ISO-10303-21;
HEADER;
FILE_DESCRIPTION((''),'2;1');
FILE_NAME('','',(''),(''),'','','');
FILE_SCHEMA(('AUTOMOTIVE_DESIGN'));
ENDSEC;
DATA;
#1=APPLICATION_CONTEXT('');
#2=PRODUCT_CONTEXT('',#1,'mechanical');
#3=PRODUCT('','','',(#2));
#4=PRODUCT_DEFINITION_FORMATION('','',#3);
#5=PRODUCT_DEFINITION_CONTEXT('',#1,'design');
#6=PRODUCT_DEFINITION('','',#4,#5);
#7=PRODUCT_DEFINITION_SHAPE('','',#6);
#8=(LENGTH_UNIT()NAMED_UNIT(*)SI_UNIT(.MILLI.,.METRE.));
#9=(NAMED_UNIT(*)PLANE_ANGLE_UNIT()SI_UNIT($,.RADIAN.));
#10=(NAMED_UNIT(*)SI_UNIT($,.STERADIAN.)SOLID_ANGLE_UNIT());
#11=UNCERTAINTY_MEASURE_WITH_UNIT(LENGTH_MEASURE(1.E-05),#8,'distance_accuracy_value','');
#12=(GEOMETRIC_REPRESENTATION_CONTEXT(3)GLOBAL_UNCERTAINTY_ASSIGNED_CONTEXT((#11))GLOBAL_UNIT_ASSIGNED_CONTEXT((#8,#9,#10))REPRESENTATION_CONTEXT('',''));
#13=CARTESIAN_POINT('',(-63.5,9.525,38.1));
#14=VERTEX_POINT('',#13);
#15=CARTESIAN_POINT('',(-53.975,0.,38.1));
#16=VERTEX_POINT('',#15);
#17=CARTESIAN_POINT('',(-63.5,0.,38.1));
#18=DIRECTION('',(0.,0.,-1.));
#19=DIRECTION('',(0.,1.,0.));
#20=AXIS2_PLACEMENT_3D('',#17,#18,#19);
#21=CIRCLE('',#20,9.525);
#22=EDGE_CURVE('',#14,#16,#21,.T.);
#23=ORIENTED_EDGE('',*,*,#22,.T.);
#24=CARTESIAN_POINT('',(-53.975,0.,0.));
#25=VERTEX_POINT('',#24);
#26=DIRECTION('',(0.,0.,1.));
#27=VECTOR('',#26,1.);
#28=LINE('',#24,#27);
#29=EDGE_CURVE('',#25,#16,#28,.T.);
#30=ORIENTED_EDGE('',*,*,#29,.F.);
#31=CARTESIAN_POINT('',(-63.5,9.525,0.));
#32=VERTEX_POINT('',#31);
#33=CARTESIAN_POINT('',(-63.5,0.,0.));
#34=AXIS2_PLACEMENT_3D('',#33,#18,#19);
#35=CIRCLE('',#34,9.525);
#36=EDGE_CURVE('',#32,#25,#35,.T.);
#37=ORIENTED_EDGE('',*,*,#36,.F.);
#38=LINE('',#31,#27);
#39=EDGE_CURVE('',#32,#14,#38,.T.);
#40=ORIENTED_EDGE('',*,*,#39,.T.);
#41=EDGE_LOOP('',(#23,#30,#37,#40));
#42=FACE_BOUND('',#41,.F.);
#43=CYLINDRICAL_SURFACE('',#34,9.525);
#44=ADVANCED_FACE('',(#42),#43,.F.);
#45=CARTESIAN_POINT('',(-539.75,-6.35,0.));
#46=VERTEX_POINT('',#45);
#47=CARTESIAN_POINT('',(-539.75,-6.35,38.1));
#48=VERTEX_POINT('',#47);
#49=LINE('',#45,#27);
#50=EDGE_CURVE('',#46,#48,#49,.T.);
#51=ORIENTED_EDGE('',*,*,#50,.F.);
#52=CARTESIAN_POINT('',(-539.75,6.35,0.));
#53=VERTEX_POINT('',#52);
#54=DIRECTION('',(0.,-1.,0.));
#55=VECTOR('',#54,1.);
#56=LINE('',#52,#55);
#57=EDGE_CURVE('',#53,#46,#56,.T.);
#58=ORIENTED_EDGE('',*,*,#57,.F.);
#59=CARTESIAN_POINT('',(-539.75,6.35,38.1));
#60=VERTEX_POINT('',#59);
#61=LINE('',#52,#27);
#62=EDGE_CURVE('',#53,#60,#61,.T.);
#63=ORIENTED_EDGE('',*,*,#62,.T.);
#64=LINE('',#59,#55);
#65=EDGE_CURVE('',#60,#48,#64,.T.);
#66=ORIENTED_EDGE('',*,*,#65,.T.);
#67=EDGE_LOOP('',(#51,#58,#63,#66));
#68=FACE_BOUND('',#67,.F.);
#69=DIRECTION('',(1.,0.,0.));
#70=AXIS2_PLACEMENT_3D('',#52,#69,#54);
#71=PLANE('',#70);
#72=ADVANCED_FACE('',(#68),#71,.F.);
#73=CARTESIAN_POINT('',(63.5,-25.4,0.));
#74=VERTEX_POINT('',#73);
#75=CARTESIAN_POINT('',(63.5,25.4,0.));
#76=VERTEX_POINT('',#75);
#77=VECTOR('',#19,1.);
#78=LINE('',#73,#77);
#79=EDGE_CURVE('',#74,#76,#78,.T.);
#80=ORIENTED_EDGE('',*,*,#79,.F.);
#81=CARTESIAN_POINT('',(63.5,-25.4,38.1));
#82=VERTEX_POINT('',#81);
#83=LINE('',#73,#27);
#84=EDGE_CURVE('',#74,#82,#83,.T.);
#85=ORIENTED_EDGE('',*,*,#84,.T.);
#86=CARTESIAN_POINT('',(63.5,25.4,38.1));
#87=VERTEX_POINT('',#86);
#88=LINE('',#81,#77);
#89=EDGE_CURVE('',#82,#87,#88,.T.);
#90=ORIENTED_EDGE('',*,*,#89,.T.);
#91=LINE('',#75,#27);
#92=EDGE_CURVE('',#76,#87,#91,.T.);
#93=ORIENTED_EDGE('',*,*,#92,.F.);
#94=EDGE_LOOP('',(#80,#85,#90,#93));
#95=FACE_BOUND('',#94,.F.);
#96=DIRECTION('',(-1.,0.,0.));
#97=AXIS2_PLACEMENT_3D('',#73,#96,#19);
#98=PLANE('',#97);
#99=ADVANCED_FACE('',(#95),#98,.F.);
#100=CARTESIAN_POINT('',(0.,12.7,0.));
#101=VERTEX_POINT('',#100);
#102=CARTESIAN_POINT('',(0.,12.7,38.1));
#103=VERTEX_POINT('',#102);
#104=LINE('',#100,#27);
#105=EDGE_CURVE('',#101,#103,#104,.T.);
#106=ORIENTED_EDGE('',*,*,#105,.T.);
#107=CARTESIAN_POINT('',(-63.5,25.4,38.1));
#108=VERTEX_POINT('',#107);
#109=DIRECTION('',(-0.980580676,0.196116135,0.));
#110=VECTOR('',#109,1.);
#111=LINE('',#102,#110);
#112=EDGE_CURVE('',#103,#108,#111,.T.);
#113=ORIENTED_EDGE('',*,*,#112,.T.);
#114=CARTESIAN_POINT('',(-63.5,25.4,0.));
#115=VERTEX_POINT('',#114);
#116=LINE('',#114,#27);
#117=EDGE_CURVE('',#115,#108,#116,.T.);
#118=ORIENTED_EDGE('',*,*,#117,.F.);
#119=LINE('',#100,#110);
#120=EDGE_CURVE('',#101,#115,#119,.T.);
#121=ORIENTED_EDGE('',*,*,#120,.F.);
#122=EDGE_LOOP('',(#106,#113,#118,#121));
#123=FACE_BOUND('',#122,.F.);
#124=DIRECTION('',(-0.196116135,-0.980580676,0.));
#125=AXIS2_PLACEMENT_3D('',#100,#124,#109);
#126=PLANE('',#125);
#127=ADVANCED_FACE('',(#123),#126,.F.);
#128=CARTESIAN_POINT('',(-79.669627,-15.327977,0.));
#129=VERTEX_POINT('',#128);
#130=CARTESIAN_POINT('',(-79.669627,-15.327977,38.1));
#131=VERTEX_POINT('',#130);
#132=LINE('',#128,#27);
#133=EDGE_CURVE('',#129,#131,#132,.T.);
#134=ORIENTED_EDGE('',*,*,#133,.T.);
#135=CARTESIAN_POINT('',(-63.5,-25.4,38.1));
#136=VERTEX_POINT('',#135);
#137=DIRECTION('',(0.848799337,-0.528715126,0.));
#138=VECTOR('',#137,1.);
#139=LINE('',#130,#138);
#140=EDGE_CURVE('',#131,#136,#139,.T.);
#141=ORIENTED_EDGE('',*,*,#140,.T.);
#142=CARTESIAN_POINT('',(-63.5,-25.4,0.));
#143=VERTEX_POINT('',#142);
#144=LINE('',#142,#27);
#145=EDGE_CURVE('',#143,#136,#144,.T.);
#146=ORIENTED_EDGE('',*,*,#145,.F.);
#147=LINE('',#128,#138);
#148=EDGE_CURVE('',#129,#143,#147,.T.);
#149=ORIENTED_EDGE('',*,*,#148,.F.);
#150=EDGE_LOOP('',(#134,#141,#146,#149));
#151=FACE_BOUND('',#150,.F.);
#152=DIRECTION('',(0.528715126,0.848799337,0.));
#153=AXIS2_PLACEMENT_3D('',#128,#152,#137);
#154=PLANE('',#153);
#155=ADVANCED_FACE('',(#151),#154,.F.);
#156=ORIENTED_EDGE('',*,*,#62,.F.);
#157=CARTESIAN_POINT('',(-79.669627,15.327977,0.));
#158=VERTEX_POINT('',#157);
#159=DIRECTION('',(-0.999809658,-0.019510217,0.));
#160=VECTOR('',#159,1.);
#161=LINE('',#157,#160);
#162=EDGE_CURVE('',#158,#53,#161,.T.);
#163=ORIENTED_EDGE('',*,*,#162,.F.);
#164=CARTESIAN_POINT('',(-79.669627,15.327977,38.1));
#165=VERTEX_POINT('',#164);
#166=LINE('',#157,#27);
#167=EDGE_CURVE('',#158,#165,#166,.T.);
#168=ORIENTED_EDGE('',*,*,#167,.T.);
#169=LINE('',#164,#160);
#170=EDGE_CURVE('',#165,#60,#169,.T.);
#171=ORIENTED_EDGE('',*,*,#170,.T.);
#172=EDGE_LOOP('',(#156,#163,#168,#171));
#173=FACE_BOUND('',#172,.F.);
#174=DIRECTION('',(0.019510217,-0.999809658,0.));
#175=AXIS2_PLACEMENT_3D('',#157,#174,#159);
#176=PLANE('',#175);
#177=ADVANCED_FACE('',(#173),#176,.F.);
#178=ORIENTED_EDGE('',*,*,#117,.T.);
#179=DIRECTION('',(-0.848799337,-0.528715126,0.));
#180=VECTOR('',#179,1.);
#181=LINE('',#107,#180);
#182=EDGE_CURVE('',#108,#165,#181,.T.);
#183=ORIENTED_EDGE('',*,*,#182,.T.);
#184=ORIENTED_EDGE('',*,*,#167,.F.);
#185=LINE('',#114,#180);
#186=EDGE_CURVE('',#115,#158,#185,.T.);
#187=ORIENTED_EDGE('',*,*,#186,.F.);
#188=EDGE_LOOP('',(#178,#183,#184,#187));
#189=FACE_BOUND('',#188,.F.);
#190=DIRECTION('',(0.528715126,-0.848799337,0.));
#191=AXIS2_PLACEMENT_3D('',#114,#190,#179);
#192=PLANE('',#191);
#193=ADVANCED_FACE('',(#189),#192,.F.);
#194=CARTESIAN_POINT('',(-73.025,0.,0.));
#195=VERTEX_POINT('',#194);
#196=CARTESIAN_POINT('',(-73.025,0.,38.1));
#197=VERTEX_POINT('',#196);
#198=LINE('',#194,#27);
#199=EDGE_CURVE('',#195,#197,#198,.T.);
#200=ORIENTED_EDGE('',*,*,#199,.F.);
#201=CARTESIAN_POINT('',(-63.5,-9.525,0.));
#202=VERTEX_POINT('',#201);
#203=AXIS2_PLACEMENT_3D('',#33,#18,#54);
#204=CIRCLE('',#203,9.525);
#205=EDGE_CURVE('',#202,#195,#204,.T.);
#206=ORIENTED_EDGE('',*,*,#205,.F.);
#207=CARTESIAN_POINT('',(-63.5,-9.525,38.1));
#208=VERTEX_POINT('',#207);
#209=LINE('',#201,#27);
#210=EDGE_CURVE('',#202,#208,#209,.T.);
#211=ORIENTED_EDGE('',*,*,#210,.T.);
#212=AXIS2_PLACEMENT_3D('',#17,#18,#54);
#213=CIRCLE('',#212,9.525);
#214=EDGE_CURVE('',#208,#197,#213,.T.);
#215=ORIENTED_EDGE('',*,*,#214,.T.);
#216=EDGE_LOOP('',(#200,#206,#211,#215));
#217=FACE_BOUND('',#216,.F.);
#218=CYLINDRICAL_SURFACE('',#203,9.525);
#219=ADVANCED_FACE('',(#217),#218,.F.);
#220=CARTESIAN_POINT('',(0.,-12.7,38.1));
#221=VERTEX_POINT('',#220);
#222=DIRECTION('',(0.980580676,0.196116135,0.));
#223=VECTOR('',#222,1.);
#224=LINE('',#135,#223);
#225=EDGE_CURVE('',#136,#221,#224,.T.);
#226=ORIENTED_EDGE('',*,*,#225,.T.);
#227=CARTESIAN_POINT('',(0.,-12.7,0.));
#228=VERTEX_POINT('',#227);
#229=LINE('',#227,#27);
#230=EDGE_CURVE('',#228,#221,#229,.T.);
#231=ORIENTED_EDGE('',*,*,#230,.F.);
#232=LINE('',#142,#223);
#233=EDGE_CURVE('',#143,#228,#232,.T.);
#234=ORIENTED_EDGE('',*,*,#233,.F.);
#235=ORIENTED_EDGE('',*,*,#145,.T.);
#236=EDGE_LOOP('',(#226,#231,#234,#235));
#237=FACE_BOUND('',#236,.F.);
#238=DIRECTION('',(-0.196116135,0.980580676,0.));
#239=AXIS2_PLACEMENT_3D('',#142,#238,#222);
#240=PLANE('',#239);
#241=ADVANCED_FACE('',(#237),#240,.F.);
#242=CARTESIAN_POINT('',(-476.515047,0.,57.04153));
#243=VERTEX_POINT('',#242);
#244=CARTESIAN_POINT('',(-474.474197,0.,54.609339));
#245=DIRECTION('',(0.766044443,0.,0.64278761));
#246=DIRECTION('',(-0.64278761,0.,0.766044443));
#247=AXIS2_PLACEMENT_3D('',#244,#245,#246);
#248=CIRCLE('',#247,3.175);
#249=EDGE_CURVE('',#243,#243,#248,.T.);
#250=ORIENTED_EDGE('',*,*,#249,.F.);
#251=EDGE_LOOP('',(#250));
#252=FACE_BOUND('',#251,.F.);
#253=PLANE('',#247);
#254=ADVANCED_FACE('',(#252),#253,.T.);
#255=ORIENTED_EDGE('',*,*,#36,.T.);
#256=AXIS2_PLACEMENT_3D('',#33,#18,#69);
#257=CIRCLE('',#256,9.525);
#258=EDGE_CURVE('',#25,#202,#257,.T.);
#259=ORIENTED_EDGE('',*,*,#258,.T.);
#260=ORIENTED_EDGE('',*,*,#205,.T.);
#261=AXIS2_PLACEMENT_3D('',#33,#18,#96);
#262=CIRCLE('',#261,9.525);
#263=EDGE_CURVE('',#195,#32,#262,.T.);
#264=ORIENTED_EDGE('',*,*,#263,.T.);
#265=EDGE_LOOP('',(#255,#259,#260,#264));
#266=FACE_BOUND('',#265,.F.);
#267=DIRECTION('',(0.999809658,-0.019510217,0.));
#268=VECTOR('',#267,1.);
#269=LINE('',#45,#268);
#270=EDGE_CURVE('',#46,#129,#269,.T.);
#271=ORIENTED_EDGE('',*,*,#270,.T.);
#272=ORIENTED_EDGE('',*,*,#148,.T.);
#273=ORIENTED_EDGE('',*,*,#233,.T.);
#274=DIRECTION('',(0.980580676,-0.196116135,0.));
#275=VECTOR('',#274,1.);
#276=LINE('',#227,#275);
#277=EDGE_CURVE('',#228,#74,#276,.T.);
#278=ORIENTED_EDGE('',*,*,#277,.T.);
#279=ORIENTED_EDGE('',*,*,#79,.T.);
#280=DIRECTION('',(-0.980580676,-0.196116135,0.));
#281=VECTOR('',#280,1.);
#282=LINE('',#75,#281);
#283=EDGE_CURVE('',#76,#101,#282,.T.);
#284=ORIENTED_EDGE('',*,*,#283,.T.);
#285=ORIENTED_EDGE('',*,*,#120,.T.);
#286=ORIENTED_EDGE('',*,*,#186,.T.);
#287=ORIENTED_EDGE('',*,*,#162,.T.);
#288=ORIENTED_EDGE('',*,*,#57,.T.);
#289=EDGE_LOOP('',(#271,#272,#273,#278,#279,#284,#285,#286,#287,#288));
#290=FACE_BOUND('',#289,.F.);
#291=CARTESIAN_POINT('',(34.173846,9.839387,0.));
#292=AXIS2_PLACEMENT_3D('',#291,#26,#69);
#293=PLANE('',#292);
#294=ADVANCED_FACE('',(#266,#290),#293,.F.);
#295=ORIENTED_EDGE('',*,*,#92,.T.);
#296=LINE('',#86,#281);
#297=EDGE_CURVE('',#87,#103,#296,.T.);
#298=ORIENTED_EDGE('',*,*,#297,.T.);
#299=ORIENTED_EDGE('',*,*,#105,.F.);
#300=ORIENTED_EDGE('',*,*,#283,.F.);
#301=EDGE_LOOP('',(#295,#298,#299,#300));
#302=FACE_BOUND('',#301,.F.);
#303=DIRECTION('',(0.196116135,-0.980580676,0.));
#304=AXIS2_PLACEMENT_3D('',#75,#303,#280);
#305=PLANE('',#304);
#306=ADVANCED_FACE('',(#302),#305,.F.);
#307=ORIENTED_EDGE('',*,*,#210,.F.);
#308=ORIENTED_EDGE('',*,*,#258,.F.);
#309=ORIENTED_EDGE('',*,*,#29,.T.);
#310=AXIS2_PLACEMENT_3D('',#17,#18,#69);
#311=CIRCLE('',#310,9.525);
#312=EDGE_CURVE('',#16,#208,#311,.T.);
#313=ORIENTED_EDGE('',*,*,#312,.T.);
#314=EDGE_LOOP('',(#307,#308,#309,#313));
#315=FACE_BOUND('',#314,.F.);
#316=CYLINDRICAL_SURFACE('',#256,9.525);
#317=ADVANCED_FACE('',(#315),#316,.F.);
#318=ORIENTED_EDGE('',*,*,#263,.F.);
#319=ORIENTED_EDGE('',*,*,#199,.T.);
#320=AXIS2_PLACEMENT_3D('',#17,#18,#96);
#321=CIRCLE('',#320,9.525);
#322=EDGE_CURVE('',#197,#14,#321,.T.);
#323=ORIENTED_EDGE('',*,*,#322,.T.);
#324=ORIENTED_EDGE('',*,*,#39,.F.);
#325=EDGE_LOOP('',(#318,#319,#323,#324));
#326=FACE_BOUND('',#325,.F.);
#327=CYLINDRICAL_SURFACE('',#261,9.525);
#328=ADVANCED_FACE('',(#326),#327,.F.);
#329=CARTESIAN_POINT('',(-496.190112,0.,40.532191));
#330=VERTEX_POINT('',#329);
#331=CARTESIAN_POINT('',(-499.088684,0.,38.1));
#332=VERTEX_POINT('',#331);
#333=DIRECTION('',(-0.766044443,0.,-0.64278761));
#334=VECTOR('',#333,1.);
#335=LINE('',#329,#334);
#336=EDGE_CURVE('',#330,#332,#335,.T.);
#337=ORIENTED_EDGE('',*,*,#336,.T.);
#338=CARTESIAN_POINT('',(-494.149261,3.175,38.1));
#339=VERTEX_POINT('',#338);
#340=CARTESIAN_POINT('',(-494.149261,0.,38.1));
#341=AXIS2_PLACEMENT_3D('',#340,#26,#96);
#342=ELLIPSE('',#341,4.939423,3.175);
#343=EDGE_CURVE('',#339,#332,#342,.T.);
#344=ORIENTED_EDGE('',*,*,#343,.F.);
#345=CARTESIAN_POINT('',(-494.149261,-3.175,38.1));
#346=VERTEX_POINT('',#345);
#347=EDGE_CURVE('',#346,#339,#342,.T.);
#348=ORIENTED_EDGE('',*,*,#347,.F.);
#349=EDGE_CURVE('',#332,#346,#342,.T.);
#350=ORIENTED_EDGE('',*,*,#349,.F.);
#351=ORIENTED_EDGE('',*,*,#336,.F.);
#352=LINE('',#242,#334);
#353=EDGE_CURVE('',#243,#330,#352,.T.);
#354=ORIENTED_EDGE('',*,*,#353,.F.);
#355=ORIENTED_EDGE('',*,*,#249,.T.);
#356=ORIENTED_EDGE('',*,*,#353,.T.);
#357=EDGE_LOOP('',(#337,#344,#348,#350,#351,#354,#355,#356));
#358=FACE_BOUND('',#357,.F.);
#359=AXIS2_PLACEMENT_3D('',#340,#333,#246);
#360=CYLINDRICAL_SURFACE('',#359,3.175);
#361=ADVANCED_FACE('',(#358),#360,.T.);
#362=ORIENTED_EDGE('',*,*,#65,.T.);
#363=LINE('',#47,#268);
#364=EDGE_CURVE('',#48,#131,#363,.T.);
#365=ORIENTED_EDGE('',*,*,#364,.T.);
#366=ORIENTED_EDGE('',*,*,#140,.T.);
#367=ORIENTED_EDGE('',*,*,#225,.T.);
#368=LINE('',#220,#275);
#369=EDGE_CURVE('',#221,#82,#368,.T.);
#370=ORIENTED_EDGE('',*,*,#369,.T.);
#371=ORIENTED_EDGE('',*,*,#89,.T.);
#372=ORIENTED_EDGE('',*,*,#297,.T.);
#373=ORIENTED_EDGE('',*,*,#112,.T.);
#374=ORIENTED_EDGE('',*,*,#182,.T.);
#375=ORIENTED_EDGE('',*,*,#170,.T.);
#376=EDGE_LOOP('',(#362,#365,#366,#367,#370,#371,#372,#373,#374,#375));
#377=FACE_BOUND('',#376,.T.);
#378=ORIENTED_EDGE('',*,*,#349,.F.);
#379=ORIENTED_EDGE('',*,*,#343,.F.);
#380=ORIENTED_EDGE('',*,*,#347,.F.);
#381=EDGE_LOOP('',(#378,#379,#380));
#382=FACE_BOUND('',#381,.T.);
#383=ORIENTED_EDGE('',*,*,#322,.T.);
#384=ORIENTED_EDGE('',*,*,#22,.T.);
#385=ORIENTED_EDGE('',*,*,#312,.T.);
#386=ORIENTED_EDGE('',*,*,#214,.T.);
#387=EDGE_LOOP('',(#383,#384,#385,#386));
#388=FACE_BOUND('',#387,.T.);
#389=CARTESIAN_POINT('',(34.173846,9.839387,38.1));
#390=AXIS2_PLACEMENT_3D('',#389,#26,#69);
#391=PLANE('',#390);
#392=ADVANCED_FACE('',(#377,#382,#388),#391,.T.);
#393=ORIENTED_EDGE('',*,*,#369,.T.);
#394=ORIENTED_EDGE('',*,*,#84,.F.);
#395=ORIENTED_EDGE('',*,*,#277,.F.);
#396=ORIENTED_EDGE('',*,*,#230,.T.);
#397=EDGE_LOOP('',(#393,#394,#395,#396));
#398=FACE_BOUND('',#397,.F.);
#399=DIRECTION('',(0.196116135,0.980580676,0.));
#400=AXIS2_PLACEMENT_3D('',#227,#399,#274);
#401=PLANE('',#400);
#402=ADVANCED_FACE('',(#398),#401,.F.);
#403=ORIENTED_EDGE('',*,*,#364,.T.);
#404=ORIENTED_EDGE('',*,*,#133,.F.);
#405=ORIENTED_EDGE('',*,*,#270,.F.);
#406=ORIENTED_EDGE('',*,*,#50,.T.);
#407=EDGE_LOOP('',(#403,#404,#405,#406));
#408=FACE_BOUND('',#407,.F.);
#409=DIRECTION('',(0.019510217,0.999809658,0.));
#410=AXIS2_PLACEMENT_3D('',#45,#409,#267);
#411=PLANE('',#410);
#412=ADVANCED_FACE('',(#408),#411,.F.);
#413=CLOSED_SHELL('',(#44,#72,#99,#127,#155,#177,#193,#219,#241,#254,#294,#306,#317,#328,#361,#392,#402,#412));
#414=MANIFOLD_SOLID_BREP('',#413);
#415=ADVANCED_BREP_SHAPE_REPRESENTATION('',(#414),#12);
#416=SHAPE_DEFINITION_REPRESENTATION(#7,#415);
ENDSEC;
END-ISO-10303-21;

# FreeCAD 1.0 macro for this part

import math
import FreeCAD as App
import Part
import Sketcher
from FreeCAD import Vector
Q = App.Units.Quantity

doc = App.newDocument("Part")
body = doc.addObject("PartDesign::Body", "Body")

sketch1 = doc.addObject("Sketcher::SketchObject", "Sketch")
body.addObject(sketch1)
sketch1.AttachmentSupport = (doc.XY_Plane, [""])
sketch1.MapMode = "FlatFace"
sketch1.addGeometry([
    Part.LineSegment(Vector(64, 25, 0), Vector(0, 13, 0)),
    Part.LineSegment(Vector(0, 13, 0), Vector(-64, 25, 0)),
    Part.LineSegment(Vector(-64, 25, 0), Vector(-80, 15, 0)),
    Part.LineSegment(Vector(-80, 15, 0), Vector(-540, 6, 0)),
    Part.LineSegment(Vector(-540, 6, 0), Vector(-540, -6, 0)),
    Part.LineSegment(Vector(-540, -6, 0), Vector(-80, -15, 0)),
    Part.LineSegment(Vector(-80, -15, 0), Vector(-64, -25, 0)),
    Part.LineSegment(Vector(-64, -25, 0), Vector(0, -13, 0)),
    Part.LineSegment(Vector(0, -13, 0), Vector(64, -25, 0)),
    Part.LineSegment(Vector(64, -25, 0), Vector(64, 25, 0)),
    Part.ArcOfCircle(Part.Circle(Vector(-64, 0, 0), Vector(0, 0, 1), 10), math.radians(90), math.radians(180)),
    Part.ArcOfCircle(Part.Circle(Vector(-64, 0, 0), Vector(0, 0, 1), 10), math.radians(0), math.radians(90)),
    Part.ArcOfCircle(Part.Circle(Vector(-64, 0, 0), Vector(0, 0, 1), 10), math.radians(-90), math.radians(0)),
    Part.ArcOfCircle(Part.Circle(Vector(-64, 0, 0), Vector(0, 0, 1), 10), math.radians(180), math.radians(270)),
], False)
sketch1.addConstraint([
    Sketcher.Constraint("Coincident", 0, 2, 1, 1),
    Sketcher.Constraint("Coincident", 1, 2, 2, 1),
    Sketcher.Constraint("Coincident", 2, 2, 3, 1),
    Sketcher.Constraint("Coincident", 3, 2, 4, 1),
    Sketcher.Constraint("Coincident", 4, 2, 5, 1),
    Sketcher.Constraint("Coincident", 5, 2, 6, 1),
    Sketcher.Constraint("Coincident", 6, 2, 7, 1),
    Sketcher.Constraint("Coincident", 7, 2, 8, 1),
    Sketcher.Constraint("Coincident", 8, 2, 9, 1),
    Sketcher.Constraint("Coincident", 9, 2, 0, 1),
    Sketcher.Constraint("Tangent", 10, 1, 11, 2),
    Sketcher.Constraint("Tangent", 11, 1, 12, 2),
    Sketcher.Constraint("Tangent", 12, 1, 13, 2),
    Sketcher.Constraint("Tangent", 13, 1, 10, 2),
    Sketcher.Constraint("Vertical", 4),
    Sketcher.Constraint("Vertical", 9),
    Sketcher.Constraint("Equal", 10, 11),
    Sketcher.Constraint("Symmetric", 0, 2, 7, 2, -1, 1),
    Sketcher.Constraint("Symmetric", 1, 2, 8, 2, -1, 1),
    Sketcher.Constraint("Symmetric", 6, 2, 9, 2, -1, 1),
    Sketcher.Constraint("Symmetric", 2, 2, 5, 2, -1),
    Sketcher.Constraint("Symmetric", 10, 1, 12, 1, -1),
    Sketcher.Constraint("PointOnObject", 0, 2, -2),
    Sketcher.Constraint("PointOnObject", 11, 1, -1),
    Sketcher.Constraint("PointOnObject", 13, 1, -1),
    Sketcher.Constraint("Horizontal", 6, 2, 8, 2),
    Sketcher.Constraint("Vertical", 13, 3, 1, 2),
    Sketcher.Constraint("Vertical", 6, 2, 10, 1),
    Sketcher.Constraint("Equal", 3, 5),
    Sketcher.Constraint("DistanceY", 9, 1, 9, 2, Q("2 in")),
    Sketcher.Constraint("DistanceY", 4, 2, 4, 1, Q("0.5 in")),
    Sketcher.Constraint("Radius", 10, Q("0.375 in")),
    Sketcher.Constraint("DistanceY", 7, 2, 0, 2, Q("1 in")),
    Sketcher.Constraint("DistanceX", 6, 2, 8, 2, Q("5 in")),
    Sketcher.Constraint("Distance", 2, Q("0.75 in")),
    Sketcher.Constraint("DistanceX", 3, 2, -1, 1, Q("21.25 in")),
    Sketcher.Constraint("Distance", 3, 460.167962),
])
pad1 = doc.addObject("PartDesign::Pad", "Pad")
body.addObject(pad1)
pad1.Profile = sketch1
pad1.Length = Q("1.5 in")

sketch2 = doc.addObject("Sketcher::SketchObject", "Sketch001")
body.addObject(sketch2)
sketch2.AttachmentSupport = (doc.XZ_Plane, [""])
sketch2.MapMode = "FlatFace"
sketch2.addGeometry([
    Part.LineSegment(Vector(-499.1, 38.1, 0), Vector(-494.1, 38.1, 0)),
    Part.LineSegment(Vector(-494.1, 38.1, 0), Vector(-474.5, 54.6, 0)),
    Part.LineSegment(Vector(-474.5, 54.6, 0), Vector(-476.5, 57, 0)),
    Part.LineSegment(Vector(-476.5, 57, 0), Vector(-496.2, 40.5, 0)),
    Part.LineSegment(Vector(-496.2, 40.5, 0), Vector(-499.1, 38.1, 0)),
], False)
sketch2.addGeometry(Part.LineSegment(Vector(-497, 35.7, 0), Vector(-474.5, 54.6, 0)), True)
sketch2.addConstraint([
    Sketcher.Constraint("Coincident", 0, 2, 1, 1),
    Sketcher.Constraint("Coincident", 1, 2, 2, 1),
    Sketcher.Constraint("Coincident", 2, 2, 3, 1),
    Sketcher.Constraint("Coincident", 3, 2, 4, 1),
    Sketcher.Constraint("Coincident", 4, 2, 0, 1),
    Sketcher.Constraint("Horizontal", 0),
    Sketcher.Constraint("Coincident", 5, 2, 1, 2),
    Sketcher.Constraint("Perpendicular", 1, 2),
    Sketcher.Constraint("Perpendicular", 2, 3),
    Sketcher.Constraint("Parallel", 3, 4),
    Sketcher.Constraint("Parallel", 4, 5),
    Sketcher.Constraint("Equal", 1, 3),
    Sketcher.Constraint("Angle", 1, Q("40 deg")),
    Sketcher.Constraint("DistanceY", -1, 1, 0, 2, Q("1.5 in")),
    Sketcher.Constraint("Distance", 2, Q("0.125 in")),
    Sketcher.Constraint("Distance", 5, 29.46779),
    Sketcher.Constraint("DistanceX", 0, 2, -1, 1, 494.149261),
    Sketcher.Constraint("DistanceY", -1, 1, 1, 2, 54.609339),
])
revolution = doc.addObject("PartDesign::Revolution", "Revolution")
body.addObject(revolution)
revolution.Profile = sketch2
revolution.ReferenceAxis = (sketch2, ["Axis0"])
revolution.Angle = 360

doc.recompute()
